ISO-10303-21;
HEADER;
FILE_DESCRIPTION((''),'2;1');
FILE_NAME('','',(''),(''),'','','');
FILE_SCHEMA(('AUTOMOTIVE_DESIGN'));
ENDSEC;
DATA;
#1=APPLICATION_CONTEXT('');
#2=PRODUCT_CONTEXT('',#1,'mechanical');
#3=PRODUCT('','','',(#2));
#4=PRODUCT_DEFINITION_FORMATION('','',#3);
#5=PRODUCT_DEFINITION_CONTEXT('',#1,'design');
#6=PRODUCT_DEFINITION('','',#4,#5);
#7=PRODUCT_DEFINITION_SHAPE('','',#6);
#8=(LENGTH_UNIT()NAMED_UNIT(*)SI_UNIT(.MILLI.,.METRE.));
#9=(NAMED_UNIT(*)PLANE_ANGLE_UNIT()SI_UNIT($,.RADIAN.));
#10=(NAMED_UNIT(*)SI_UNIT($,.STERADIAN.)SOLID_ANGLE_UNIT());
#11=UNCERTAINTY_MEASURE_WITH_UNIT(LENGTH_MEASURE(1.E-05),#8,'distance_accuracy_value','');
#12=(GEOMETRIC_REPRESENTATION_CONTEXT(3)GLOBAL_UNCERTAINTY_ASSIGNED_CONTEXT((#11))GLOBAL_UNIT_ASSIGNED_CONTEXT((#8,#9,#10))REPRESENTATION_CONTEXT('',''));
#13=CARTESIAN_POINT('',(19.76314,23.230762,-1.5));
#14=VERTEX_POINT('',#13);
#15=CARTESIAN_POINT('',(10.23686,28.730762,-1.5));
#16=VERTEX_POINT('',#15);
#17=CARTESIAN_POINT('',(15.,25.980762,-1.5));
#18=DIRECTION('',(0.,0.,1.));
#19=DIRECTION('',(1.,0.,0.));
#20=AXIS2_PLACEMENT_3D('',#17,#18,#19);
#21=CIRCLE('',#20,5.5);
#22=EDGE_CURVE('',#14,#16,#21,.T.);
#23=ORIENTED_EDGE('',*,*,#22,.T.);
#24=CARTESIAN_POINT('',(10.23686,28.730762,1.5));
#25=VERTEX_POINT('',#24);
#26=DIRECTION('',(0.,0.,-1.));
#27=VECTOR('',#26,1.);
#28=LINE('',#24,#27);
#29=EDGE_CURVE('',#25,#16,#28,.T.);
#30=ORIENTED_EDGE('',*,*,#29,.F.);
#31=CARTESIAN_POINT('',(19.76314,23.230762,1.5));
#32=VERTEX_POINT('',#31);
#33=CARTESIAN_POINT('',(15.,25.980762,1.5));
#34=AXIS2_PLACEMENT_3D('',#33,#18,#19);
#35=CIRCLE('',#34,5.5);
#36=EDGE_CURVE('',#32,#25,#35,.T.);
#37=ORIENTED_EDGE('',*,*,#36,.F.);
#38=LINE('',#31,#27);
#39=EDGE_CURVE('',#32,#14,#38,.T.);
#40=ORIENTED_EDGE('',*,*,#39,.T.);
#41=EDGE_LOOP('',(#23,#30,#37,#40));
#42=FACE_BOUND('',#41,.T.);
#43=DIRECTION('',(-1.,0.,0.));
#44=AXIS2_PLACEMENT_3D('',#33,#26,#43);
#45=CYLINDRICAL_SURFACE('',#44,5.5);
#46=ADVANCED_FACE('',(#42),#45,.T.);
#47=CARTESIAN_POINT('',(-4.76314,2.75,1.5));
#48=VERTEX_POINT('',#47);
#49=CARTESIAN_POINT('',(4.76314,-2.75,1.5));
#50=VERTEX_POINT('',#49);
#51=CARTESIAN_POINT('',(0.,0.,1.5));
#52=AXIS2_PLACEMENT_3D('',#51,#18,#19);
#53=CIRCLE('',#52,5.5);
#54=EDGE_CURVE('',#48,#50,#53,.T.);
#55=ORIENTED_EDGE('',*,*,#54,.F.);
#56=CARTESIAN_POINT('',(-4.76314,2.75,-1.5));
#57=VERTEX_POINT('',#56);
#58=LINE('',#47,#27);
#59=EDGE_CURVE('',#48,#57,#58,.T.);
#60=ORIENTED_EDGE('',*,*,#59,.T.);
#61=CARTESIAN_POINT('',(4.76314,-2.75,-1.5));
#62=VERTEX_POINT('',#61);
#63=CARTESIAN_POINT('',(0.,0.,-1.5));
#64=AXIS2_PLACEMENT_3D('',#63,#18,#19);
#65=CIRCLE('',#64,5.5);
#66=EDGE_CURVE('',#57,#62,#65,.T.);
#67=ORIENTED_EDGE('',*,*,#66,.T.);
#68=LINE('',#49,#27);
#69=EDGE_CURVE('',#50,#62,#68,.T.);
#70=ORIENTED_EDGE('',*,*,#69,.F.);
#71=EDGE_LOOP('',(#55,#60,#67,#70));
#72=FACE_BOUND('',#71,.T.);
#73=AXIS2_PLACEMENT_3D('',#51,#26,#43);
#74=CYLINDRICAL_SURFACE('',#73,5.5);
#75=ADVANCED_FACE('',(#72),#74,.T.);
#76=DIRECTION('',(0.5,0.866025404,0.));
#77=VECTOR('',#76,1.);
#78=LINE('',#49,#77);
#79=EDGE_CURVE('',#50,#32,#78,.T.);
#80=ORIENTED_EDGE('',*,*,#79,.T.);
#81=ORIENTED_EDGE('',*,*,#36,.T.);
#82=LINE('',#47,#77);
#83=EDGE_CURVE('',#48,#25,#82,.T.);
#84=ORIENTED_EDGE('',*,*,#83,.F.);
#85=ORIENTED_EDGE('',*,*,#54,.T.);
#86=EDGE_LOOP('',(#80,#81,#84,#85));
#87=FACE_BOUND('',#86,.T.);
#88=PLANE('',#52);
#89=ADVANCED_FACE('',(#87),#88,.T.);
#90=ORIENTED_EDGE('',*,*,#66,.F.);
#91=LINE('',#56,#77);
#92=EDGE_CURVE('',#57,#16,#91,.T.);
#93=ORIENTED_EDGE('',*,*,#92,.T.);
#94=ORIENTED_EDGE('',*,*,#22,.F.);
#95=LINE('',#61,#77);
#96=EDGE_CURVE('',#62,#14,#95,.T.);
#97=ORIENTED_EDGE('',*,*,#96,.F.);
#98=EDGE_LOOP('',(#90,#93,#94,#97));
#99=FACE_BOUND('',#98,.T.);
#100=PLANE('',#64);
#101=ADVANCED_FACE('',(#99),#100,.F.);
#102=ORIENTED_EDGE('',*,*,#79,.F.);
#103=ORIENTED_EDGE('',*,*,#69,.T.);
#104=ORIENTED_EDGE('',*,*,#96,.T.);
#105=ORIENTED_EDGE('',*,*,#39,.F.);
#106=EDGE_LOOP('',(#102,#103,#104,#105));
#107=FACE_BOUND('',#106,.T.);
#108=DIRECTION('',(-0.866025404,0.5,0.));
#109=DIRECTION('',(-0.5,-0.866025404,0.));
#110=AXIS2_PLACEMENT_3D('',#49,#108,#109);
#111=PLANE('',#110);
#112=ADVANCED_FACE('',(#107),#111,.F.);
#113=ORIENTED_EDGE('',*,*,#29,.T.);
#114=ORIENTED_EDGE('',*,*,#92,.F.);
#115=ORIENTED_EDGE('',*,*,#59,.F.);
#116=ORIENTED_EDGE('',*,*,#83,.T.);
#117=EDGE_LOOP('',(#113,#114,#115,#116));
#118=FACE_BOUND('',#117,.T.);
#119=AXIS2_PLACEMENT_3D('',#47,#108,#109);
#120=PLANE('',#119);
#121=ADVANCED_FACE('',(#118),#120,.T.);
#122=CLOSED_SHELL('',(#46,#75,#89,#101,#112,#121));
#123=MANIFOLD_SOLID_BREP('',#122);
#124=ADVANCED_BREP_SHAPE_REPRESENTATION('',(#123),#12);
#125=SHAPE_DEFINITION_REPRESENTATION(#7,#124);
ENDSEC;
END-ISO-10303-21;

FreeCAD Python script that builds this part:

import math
import FreeCAD as App
import Part
import Sketcher

V = App.Vector
Q = App.Units.Quantity

doc = App.newDocument("Part")
body = doc.addObject("PartDesign::Body", "Body")

sketch1 = doc.addObject("Sketcher::SketchObject", "Sketch")
body.addObject(sketch1)
sketch1.AttachmentSupport = (doc.XY_Plane, [""])
sketch1.MapMode = "FlatFace"
sketch1.addGeometry(Part.LineSegment(V(10, 29, 0), V(-5, 3, 0)), False)
sketch1.addGeometry(Part.ArcOfCircle(Part.Circle(V(0, 0, 0), V(0, 0, 1), 6), math.radians(150), math.radians(330)), False)
sketch1.addGeometry(Part.LineSegment(V(5, -3, 0), V(20, 23, 0)), False)
sketch1.addGeometry(Part.ArcOfCircle(Part.Circle(V(15, 26, 0), V(0, 0, 1), 6), math.radians(-30), math.radians(150)), False)
sketch1.addConstraint(Sketcher.Constraint("Tangent", 0, 2, 1, 1))
sketch1.addConstraint(Sketcher.Constraint("Tangent", 1, 2, 2, 1))
sketch1.addConstraint(Sketcher.Constraint("Tangent", 2, 2, 3, 1))
sketch1.addConstraint(Sketcher.Constraint("Tangent", 3, 2, 0, 1))
sketch1.addConstraint(Sketcher.Constraint("Coincident", 1, 3, -1, 1))
sketch1.addConstraint(Sketcher.Constraint("Equal", 1, 3))
sketch1.addConstraint(Sketcher.Constraint("Radius", 1, Q("5.5 mm")))
sketch1.addConstraint(Sketcher.Constraint("Angle", 0, Q("-120 deg")))
sketch1.addConstraint(Sketcher.Constraint("Distance", 0, Q("30 mm")))
pad1 = doc.addObject("PartDesign::Pad", "Pad")
body.addObject(pad1)
pad1.Profile = sketch1
pad1.Length = 3
pad1.Midplane = True

doc.recompute()
